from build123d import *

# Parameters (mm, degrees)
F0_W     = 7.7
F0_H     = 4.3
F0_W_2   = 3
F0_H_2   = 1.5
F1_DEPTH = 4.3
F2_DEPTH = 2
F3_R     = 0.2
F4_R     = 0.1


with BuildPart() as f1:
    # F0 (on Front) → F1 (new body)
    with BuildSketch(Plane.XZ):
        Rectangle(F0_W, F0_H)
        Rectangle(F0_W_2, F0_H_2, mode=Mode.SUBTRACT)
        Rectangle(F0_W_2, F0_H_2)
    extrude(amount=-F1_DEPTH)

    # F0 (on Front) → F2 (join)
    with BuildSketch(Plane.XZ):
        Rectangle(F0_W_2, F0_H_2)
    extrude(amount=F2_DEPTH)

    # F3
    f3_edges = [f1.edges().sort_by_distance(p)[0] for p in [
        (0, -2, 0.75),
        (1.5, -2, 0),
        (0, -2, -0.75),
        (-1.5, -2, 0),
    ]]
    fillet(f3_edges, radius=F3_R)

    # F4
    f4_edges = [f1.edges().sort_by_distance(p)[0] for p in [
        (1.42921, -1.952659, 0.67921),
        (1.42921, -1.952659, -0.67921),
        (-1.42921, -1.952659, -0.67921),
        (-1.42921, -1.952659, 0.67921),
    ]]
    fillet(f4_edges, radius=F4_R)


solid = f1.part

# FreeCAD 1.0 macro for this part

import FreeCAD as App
import Part
import Sketcher

V = App.Vector


def edges_at(feature, points):
    """Names of the edges that pass closest to the given points."""
    edges = feature.Shape.Edges
    near = lambda p: min(range(len(edges)), key=lambda i: edges[i].distToShape(Part.Vertex(*p))[0])
    return sorted({f"Edge{near(p) + 1}" for p in points})


def add_polygon(sketch, points):
    """Adds a closed chain of lines whose ends are joined by coincident constraints."""
    first, n = sketch.GeometryCount, len(points)
    for a, b in zip(points, points[1:] + points[:1]):
        sketch.addGeometry(Part.LineSegment(App.Vector(*a, 0), App.Vector(*b, 0)), False)
    for i in range(n):
        sketch.addConstraint(Sketcher.Constraint("Coincident", first + i, 2, first + (i + 1) % n, 1))

doc = App.newDocument("Part")
body = doc.addObject("PartDesign::Body", "Body")

# Sketch on XZ plane
sketch1 = body.newObject("Sketcher::SketchObject", "Sketch")
sketch1.AttachmentSupport = (doc.getObject("XZ_Plane"), [""])
sketch1.MapMode = "FlatFace"
add_polygon(sketch1, [(-3.9, 2.1), (-3.9, -2.1), (3.9, -2.1), (3.9, 2.1)])  # lines 0-3
sketch1.addConstraint(Sketcher.Constraint("Vertical", 0))
sketch1.addConstraint(Sketcher.Constraint("Horizontal", 1))
sketch1.addConstraint(Sketcher.Constraint("Vertical", 2))
sketch1.addConstraint(Sketcher.Constraint("Horizontal", 3))
sketch1.addConstraint(Sketcher.Constraint("Symmetric", 0, 2, 2, 2, -1, 1))
sketch1.addConstraint(Sketcher.Constraint("DistanceX", 1, 1, 1, 2, 7.7))
sketch1.addConstraint(Sketcher.Constraint("DistanceY", 0, 2, 0, 1, 4.3))
pad1 = body.newObject("PartDesign::Pad", "Pad")
pad1.Profile = sketch1
pad1.Length = 4.3
pad1.Reversed = True

# Sketch on XZ plane
sketch2 = body.newObject("Sketcher::SketchObject", "Sketch001")
sketch2.AttachmentSupport = (doc.getObject("XZ_Plane"), [""])
sketch2.MapMode = "FlatFace"
add_polygon(sketch2, [(-1.5, 0.8), (-1.5, -0.8), (1.5, -0.8), (1.5, 0.8)])  # lines 0-3
sketch2.addConstraint(Sketcher.Constraint("Vertical", 0))
sketch2.addConstraint(Sketcher.Constraint("Horizontal", 1))
sketch2.addConstraint(Sketcher.Constraint("Vertical", 2))
sketch2.addConstraint(Sketcher.Constraint("Horizontal", 3))
sketch2.addConstraint(Sketcher.Constraint("Symmetric", 0, 2, 2, 2, -1, 1))
sketch2.addConstraint(Sketcher.Constraint("DistanceX", 1, 1, 1, 2, 3.0))
sketch2.addConstraint(Sketcher.Constraint("DistanceY", 0, 2, 0, 1, 1.5))
pad2 = body.newObject("PartDesign::Pad", "Pad001")
pad2.Profile = sketch2
pad2.Length = 2
doc.recompute()

fillet = body.newObject("PartDesign::Fillet", "Fillet")
fillet.Base = (pad2, edges_at(pad2, [
    (0, -2, 0.75),
    (1.5, -2, 0),
    (0, -2, -0.75),
    (-1.5, -2, 0),
]))
fillet.Radius = 0.2
doc.recompute()

fillet2 = body.newObject("PartDesign::Fillet", "Fillet001")
fillet2.Base = (fillet, edges_at(fillet, [
    (1.429, -1.953, 0.679),
    (1.429, -1.953, -0.679),
    (-1.429, -1.953, -0.679),
    (-1.429, -1.953, 0.679),
]))
fillet2.Radius = 0.1

doc.recompute()
